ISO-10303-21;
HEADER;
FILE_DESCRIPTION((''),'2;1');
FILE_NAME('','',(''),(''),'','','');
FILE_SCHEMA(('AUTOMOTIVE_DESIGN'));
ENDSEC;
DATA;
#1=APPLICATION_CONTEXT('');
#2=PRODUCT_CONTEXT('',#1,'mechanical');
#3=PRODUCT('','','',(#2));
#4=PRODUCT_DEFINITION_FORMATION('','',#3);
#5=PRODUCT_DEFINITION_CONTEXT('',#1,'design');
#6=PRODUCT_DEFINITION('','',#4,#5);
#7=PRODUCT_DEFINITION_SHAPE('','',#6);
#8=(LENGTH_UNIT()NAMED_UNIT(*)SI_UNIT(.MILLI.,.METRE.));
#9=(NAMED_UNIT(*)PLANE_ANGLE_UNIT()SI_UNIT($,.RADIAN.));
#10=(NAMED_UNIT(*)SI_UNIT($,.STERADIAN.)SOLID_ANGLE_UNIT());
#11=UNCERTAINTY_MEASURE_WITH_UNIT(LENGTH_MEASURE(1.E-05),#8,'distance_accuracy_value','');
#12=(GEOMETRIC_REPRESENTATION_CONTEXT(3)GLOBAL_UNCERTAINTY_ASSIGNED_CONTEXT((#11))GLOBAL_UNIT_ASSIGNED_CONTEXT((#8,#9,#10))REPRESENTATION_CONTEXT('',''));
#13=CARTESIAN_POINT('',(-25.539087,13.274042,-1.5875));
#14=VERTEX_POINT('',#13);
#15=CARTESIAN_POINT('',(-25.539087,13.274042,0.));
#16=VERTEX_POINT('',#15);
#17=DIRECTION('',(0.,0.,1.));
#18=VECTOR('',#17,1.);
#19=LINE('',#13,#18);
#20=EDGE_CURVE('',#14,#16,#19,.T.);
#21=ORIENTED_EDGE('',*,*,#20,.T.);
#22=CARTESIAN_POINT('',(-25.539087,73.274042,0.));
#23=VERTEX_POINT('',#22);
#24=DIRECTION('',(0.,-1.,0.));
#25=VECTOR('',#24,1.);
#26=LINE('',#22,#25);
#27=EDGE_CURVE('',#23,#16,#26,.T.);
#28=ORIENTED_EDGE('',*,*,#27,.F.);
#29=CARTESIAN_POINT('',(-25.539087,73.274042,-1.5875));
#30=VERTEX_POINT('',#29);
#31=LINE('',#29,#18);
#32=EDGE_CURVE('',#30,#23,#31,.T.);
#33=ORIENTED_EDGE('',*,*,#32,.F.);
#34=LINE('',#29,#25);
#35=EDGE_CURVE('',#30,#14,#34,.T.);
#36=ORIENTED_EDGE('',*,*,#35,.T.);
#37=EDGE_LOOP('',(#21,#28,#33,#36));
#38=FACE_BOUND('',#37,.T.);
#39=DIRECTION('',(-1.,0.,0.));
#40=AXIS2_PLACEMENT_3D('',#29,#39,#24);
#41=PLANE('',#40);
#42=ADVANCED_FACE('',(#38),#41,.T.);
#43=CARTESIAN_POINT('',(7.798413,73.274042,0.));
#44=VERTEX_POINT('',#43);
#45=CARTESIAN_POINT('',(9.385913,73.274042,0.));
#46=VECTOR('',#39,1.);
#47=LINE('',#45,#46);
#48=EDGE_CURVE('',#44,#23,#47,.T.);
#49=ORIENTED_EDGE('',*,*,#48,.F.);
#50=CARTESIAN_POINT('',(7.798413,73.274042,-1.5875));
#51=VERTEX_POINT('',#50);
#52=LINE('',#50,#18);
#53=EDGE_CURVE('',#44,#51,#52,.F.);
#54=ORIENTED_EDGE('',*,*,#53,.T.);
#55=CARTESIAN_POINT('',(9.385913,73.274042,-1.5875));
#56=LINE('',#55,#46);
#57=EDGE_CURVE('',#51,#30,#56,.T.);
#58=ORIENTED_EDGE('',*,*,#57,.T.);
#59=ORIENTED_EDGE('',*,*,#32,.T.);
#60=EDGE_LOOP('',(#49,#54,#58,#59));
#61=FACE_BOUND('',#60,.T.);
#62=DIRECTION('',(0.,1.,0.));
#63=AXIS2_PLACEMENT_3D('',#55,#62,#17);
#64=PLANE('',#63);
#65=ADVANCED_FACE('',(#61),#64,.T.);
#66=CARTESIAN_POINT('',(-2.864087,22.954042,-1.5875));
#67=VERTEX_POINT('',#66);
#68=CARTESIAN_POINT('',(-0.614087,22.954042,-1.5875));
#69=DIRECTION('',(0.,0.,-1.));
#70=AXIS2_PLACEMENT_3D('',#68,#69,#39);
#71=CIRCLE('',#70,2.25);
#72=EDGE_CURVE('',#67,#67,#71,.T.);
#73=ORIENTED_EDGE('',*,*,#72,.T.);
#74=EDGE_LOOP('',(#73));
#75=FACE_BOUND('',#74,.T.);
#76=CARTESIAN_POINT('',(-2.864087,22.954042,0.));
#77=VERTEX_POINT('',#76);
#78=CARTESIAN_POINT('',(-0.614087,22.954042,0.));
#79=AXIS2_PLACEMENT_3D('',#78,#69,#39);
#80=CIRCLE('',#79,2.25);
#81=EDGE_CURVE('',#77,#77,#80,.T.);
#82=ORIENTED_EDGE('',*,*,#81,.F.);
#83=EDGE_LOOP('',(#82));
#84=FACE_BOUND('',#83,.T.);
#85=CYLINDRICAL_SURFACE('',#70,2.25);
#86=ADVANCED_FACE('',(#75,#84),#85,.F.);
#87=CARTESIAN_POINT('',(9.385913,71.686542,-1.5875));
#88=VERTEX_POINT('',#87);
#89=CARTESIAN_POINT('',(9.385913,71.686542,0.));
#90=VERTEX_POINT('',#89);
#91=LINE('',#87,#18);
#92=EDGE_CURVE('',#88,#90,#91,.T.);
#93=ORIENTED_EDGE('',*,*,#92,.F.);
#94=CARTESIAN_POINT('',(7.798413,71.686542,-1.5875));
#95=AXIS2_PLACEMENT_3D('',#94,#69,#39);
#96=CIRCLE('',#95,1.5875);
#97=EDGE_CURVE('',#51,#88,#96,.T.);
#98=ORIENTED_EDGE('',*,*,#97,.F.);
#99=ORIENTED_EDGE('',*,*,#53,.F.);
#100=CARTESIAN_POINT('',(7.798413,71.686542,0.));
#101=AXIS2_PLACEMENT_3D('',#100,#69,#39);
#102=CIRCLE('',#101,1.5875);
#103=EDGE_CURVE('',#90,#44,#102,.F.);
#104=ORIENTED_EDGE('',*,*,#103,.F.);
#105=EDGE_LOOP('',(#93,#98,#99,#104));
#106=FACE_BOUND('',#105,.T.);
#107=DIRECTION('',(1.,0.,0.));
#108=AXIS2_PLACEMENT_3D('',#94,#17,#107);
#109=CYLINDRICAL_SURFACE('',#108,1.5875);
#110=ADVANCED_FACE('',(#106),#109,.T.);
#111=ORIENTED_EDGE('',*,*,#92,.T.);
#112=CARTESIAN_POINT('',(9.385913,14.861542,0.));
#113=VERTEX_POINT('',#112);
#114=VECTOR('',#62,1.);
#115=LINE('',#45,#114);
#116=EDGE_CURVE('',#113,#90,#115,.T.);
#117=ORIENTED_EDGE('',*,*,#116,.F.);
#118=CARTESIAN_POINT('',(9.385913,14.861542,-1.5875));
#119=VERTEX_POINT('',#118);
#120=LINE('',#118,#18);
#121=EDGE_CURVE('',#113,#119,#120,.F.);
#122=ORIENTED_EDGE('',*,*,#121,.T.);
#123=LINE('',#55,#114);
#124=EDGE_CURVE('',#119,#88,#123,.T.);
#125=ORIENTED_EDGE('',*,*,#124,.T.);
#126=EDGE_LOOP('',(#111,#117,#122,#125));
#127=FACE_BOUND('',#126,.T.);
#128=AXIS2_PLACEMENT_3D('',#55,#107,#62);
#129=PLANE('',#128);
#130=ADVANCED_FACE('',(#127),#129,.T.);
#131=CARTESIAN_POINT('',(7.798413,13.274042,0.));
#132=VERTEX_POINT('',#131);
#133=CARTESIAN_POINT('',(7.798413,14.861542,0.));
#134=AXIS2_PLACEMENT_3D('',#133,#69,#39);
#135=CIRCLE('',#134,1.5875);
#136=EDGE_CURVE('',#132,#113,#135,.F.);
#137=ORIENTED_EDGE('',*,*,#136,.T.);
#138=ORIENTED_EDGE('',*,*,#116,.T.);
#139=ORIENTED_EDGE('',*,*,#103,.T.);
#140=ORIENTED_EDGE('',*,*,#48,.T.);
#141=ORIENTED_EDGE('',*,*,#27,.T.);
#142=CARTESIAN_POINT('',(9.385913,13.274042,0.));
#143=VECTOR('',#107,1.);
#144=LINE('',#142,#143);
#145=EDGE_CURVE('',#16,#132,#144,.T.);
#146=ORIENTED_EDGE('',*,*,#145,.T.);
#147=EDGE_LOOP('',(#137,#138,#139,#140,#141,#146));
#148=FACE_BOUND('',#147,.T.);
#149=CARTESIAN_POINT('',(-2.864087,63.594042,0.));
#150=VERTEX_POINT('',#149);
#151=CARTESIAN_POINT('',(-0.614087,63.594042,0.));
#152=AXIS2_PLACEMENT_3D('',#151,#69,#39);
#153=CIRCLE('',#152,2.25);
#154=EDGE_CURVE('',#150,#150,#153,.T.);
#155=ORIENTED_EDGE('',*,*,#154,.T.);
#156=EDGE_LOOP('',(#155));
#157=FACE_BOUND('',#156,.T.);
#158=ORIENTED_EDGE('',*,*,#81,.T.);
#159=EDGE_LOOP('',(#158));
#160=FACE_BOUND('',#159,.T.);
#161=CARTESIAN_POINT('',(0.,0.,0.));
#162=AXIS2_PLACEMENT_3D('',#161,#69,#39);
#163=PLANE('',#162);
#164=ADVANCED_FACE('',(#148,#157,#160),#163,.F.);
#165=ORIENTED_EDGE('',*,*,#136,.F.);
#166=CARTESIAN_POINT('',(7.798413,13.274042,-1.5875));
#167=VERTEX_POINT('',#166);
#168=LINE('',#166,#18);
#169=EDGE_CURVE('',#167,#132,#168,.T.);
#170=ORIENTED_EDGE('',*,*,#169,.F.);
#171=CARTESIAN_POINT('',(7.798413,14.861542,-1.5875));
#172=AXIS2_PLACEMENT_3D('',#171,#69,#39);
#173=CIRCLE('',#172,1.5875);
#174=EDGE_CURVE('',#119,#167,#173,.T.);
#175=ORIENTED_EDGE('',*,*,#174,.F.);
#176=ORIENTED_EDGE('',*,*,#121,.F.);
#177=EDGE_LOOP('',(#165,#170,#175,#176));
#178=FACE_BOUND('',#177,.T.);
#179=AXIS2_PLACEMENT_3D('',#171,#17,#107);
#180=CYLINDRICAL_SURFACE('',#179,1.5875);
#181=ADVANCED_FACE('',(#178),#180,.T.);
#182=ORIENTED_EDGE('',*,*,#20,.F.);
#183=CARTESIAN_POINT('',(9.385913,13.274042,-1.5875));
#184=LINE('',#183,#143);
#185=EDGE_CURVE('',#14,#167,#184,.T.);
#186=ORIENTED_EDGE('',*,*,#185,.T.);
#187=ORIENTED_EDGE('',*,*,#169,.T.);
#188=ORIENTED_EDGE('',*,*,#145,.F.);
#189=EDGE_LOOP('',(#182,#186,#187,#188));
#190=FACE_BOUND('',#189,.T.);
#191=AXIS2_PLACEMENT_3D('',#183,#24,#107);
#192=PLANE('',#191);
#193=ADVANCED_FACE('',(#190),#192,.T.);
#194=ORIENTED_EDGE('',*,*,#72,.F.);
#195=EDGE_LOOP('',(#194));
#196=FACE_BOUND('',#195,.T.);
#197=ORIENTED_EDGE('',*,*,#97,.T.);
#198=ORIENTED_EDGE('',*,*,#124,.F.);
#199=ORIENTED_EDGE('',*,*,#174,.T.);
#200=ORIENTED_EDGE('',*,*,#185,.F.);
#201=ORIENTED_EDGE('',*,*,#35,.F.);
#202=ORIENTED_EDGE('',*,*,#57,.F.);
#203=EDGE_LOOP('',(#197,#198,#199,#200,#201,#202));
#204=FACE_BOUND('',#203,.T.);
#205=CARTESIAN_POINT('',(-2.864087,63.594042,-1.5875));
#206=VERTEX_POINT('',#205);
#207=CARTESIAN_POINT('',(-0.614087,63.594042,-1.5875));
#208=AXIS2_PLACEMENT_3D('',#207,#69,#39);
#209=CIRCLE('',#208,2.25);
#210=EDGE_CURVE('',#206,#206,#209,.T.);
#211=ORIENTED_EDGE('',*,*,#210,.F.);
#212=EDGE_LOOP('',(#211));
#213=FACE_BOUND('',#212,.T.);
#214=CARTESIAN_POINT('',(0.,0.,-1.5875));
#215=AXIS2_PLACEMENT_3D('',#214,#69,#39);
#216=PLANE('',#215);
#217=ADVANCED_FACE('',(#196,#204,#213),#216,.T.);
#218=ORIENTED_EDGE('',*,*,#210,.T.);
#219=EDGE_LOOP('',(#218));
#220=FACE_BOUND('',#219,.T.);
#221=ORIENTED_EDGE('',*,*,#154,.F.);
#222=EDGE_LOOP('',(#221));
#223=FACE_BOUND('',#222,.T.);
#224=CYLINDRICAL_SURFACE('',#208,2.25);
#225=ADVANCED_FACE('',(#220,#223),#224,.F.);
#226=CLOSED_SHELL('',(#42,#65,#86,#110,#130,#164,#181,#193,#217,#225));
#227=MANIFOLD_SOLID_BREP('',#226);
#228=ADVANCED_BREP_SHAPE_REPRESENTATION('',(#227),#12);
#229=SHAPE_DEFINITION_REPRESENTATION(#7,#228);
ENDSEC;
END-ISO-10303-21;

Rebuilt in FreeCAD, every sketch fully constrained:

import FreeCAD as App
import Part
import Sketcher
Q = App.Units.Quantity


def edges_at(feature, points):
    """Names of the edges that pass closest to the given points."""
    edges = feature.Shape.Edges
    near = lambda p: min(range(len(edges)), key=lambda i: edges[i].distToShape(Part.Vertex(*p))[0])
    return sorted({f"Edge{near(p) + 1}" for p in points})

doc = App.newDocument("Part")
params = doc.addObject("Spreadsheet::Sheet", "Params")
for row, (alias, value) in enumerate([
    ("sketch1_height", "60 mm"),
    ("pad1_length", "1.5875 mm"),
    ("sketch2_diameter", "4.5 mm"),
    ("hole_diameter", "4.5 mm"),
    ("fillet_radius", "1.5875 mm"),
], start=1):
    params.set(f"A{row}", alias)
    params.set(f"B{row}", "=" + value)
    params.setAlias(f"B{row}", alias)

body = doc.addObject("PartDesign::Body", "Body")

sketch1 = doc.addObject("Sketcher::SketchObject", "Sketch")
body.addObject(sketch1)
sketch1.AttachmentSupport = (doc.XY_Plane, [""])
sketch1.MapMode = "FlatFace"
sketch1.addGeometry([
    Part.LineSegment(App.Vector(-26, 73, 0), App.Vector(-26, 13, 0)),
    Part.LineSegment(App.Vector(-26, 13, 0), App.Vector(9, 13, 0)),
    Part.LineSegment(App.Vector(9, 13, 0), App.Vector(9, 73, 0)),
    Part.LineSegment(App.Vector(9, 73, 0), App.Vector(-26, 73, 0)),
], False)
sketch1.addConstraint([
    Sketcher.Constraint("Coincident", 0, 2, 1, 1),
    Sketcher.Constraint("Coincident", 1, 2, 2, 1),
    Sketcher.Constraint("Coincident", 2, 2, 3, 1),
    Sketcher.Constraint("Coincident", 3, 2, 0, 1),
    Sketcher.Constraint("Vertical", 0),
    Sketcher.Constraint("Horizontal", 1),
    Sketcher.Constraint("Vertical", 2),
    Sketcher.Constraint("Horizontal", 3),
    Sketcher.Constraint("DistanceY", 0, 2, 0, 1, Q("60 mm")),
    Sketcher.Constraint("DistanceX", 1, 1, 1, 2, Q("34.925 mm")),
    Sketcher.Constraint("DistanceX", 0, 2, -1, 1, Q("25.539087 mm")),
    Sketcher.Constraint("DistanceY", -1, 1, 0, 2, Q("13.274042 mm")),
])
sketch1.setExpression("Constraints[8]", "Params.sketch1_height")
pad1 = doc.addObject("PartDesign::Pad", "Pad")
body.addObject(pad1)
pad1.Profile = sketch1
pad1.setExpression("Length", "Params.pad1_length")
pad1.Reversed = True

sketch2 = doc.addObject("Sketcher::SketchObject", "Sketch001")
body.addObject(sketch2)
sketch2.AttachmentSupport = (doc.XY_Plane, [""])
sketch2.MapMode = "FlatFace"
sketch2.AttachmentOffset = App.Placement(App.Vector(0, 0, -1.5875), App.Rotation())
sketch2.addGeometry([
    Part.Circle(App.Vector(-0.6, 63.6, 0), App.Vector(0, 0, 1), 2.2),
    Part.Circle(App.Vector(-0.6, 23, 0), App.Vector(0, 0, 1), 2.2),
], False)
sketch2.addConstraint([
    Sketcher.Constraint("Equal", 0, 1),
    Sketcher.Constraint("Vertical", 0, 3, 1, 3),
    Sketcher.Constraint("Diameter", 0, Q("4.5 mm")),
    Sketcher.Constraint("DistanceY", 1, 3, 0, 3, Q("40.64 mm")),
    Sketcher.Constraint("DistanceX", 0, 3, -1, 1, Q("0.614087 mm")),
    Sketcher.Constraint("DistanceY", -1, 1, 0, 3, Q("63.594042 mm")),
])
sketch2.setExpression("Constraints[2]", "Params.sketch2_diameter")
doc.recompute()
hole = doc.addObject("PartDesign::Hole", "Hole")
body.addObject(hole)
hole.Profile = sketch2
hole.ThreadType = "None"
hole.setExpression("Diameter", "Params.hole_diameter")
hole.DepthType = "ThroughAll"
hole.Reversed = True
doc.recompute()

fillet = doc.addObject("PartDesign::Fillet", "Fillet")
body.addObject(fillet)
fillet.Base = (hole, edges_at(hole, [(9.386, 13.274, -0.794), (9.386, 73.274, -0.794)]))
fillet.setExpression("Radius", "Params.fillet_radius")

doc.recompute()
